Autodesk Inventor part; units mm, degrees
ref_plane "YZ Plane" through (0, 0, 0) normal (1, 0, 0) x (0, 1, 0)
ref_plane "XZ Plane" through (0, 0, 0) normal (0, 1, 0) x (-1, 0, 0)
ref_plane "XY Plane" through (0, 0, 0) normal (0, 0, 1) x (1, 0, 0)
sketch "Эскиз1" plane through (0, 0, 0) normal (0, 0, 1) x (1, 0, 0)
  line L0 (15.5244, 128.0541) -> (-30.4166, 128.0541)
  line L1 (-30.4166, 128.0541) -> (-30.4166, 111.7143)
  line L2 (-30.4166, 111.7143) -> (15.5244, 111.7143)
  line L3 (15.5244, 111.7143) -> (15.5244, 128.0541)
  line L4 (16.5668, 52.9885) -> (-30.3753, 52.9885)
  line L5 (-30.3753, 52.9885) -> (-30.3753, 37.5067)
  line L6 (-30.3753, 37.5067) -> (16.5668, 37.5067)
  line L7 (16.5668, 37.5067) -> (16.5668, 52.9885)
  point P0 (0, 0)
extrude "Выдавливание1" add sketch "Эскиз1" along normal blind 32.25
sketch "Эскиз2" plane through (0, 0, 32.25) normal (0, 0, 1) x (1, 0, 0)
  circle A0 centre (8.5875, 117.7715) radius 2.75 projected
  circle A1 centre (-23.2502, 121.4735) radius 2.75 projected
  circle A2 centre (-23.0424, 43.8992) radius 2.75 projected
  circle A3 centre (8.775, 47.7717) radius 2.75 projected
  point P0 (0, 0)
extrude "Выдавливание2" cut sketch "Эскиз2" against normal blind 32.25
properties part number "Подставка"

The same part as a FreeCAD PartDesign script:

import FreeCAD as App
import Part
import Sketcher
from FreeCAD import Vector


def add_polygon(sketch, points):
    """Adds a closed chain of lines whose ends are joined by coincident constraints."""
    first, n = sketch.GeometryCount, len(points)
    for a, b in zip(points, points[1:] + points[:1]):
        sketch.addGeometry(Part.LineSegment(App.Vector(*a, 0), App.Vector(*b, 0)), False)
    for i in range(n):
        sketch.addConstraint(Sketcher.Constraint("Coincident", first + i, 2, first + (i + 1) % n, 1))

doc = App.newDocument("Part")
body = doc.addObject("PartDesign::Body", "Body")
body.AllowCompound = True

# Sketch on XY plane
sketch1 = doc.addObject("Sketcher::SketchObject", "Sketch")
body.addObject(sketch1)
sketch1.AttachmentSupport = (doc.XY_Plane, [""])
sketch1.MapMode = "FlatFace"
add_polygon(sketch1, [(16, 112), (16, 128), (-30, 128), (-30, 112)])  # lines 0-3
add_polygon(sketch1, [(17, 38), (17, 53), (-30, 53), (-30, 38)])  # lines 4-7
sketch1.addConstraint([
    Sketcher.Constraint("Vertical", 0),
    Sketcher.Constraint("Horizontal", 1),
    Sketcher.Constraint("Vertical", 2),
    Sketcher.Constraint("Horizontal", 3),
    Sketcher.Constraint("Vertical", 4),
    Sketcher.Constraint("Horizontal", 5),
    Sketcher.Constraint("Vertical", 6),
    Sketcher.Constraint("Horizontal", 7),
    Sketcher.Constraint("DistanceX", 1, 2, 1, 1, 45.941),
    Sketcher.Constraint("DistanceX", 5, 2, 5, 1, 46.942),
    Sketcher.Constraint("DistanceY", 0, 1, 0, 2, 16.3398),
    Sketcher.Constraint("DistanceY", 4, 1, 4, 2, 15.4818),
    Sketcher.Constraint("DistanceY", -1, 1, 0, 2, 128.054),
    Sketcher.Constraint("DistanceX", -1, 1, 0, 2, 15.5244),
    Sketcher.Constraint("DistanceX", -1, 1, 4, 2, 16.5668),
    Sketcher.Constraint("DistanceY", -1, 1, 4, 2, 52.9885),
])
pad1 = doc.addObject("PartDesign::Pad", "Pad")
body.addObject(pad1)
pad1.Profile = sketch1
pad1.Length = 32.25

# Sketch on XY plane
sketch2 = doc.addObject("Sketcher::SketchObject", "Sketch001")
body.addObject(sketch2)
sketch2.AttachmentSupport = (doc.XY_Plane, [""])
sketch2.MapMode = "FlatFace"
sketch2.AttachmentOffset = App.Placement(Vector(0, 0, 32.25), App.Rotation())
sketch2.addGeometry([
    Part.Circle(Vector(8.6, 117.8, 0), Vector(0, 0, 1), 2.8),
    Part.Circle(Vector(-23.3, 121.5, 0), Vector(0, 0, 1), 2.8),
    Part.Circle(Vector(-23, 43.9, 0), Vector(0, 0, 1), 2.8),
    Part.Circle(Vector(8.8, 47.8, 0), Vector(0, 0, 1), 2.8),
], False)
sketch2.addConstraint([
    Sketcher.Constraint("Equal", 0, 1),
    Sketcher.Constraint("Equal", 1, 2),
    Sketcher.Constraint("Equal", 2, 3),
    Sketcher.Constraint("Diameter", 0, 5.5),
    Sketcher.Constraint("DistanceX", 2, 3, 0, 3, 31.63),
    Sketcher.Constraint("DistanceX", -1, 1, 3, 3, 8.775),
    Sketcher.Constraint("DistanceY", 0, 3, 1, 3, 3.702),
    Sketcher.Constraint("DistanceX", -1, 1, 0, 3, 8.5875),
    Sketcher.Constraint("DistanceY", -1, 1, 0, 3, 117.7715),
    Sketcher.Constraint("DistanceX", 1, 3, -1, 1, 23.2502),
    Sketcher.Constraint("DistanceY", -1, 1, 2, 3, 43.8992),
    Sketcher.Constraint("DistanceY", -1, 1, 3, 3, 47.7717),
])
pocket1 = doc.addObject("PartDesign::Pocket", "Pocket")
body.addObject(pocket1)
pocket1.Profile = sketch2
pocket1.Length = 32.25

doc.recompute()
